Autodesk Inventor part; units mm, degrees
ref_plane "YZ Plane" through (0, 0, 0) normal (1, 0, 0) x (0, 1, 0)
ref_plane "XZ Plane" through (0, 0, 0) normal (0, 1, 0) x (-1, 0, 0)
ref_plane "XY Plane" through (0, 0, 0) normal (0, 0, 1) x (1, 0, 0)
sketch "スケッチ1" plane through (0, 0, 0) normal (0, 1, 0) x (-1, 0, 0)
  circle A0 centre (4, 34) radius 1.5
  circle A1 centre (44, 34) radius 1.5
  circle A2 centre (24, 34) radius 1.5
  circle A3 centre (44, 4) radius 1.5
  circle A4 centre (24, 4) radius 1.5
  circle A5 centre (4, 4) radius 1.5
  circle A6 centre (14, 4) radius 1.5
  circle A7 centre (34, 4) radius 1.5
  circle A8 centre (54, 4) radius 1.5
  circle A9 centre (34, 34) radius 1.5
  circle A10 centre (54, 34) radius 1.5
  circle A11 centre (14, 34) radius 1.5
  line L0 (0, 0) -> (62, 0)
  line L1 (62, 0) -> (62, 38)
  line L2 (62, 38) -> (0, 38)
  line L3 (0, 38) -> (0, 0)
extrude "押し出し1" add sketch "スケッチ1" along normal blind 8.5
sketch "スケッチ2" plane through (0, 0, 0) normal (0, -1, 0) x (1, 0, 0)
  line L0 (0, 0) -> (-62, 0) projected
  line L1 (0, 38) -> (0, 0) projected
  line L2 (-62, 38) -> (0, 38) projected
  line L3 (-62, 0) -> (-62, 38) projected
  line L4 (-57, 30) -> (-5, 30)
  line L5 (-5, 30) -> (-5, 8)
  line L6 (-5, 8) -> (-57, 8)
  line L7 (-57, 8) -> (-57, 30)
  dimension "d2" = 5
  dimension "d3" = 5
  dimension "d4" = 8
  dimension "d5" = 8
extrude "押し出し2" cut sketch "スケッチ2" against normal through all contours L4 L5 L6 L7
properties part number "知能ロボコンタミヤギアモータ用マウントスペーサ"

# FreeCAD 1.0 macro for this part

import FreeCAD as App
import Part
import Sketcher

V = App.Vector
Q = App.Units.Quantity


def add_polygon(sketch, points):
    """Adds a closed chain of lines whose ends are joined by coincident constraints."""
    first, n = sketch.GeometryCount, len(points)
    for a, b in zip(points, points[1:] + points[:1]):
        sketch.addGeometry(Part.LineSegment(App.Vector(*a, 0), App.Vector(*b, 0)), False)
    for i in range(n):
        sketch.addConstraint(Sketcher.Constraint("Coincident", first + i, 2, first + (i + 1) % n, 1))

doc = App.newDocument("Part")
body = doc.addObject("PartDesign::Body", "Body")

# Sketch on XZ plane
sketch1 = body.newObject("Sketcher::SketchObject", "Sketch")
sketch1.AttachmentSupport = (doc.getObject("XZ_Plane"), [""])
sketch1.MapMode = "FlatFace"
add_polygon(sketch1, [(0, 38), (0, 0), (-62, 0), (-62, 38)])  # lines 0-3
sketch1.addGeometry(Part.Circle(V(-4, 4, 0), V(0, 0, 1), 1.5), False)  # 4
sketch1.addGeometry(Part.Circle(V(-14, 4, 0), V(0, 0, 1), 1.5), False)  # 5
sketch1.addGeometry(Part.Circle(V(-24, 4, 0), V(0, 0, 1), 1.5), False)  # 6
sketch1.addGeometry(Part.Circle(V(-34, 4, 0), V(0, 0, 1), 1.5), False)  # 7
sketch1.addGeometry(Part.Circle(V(-44, 4, 0), V(0, 0, 1), 1.5), False)  # 8
sketch1.addGeometry(Part.Circle(V(-54, 4, 0), V(0, 0, 1), 1.5), False)  # 9
sketch1.addGeometry(Part.Circle(V(-4, 34, 0), V(0, 0, 1), 1.5), False)  # 10
sketch1.addGeometry(Part.Circle(V(-14, 34, 0), V(0, 0, 1), 1.5), False)  # 11
sketch1.addGeometry(Part.Circle(V(-24, 34, 0), V(0, 0, 1), 1.5), False)  # 12
sketch1.addGeometry(Part.Circle(V(-34, 34, 0), V(0, 0, 1), 1.5), False)  # 13
sketch1.addGeometry(Part.Circle(V(-44, 34, 0), V(0, 0, 1), 1.5), False)  # 14
sketch1.addGeometry(Part.Circle(V(-54, 34, 0), V(0, 0, 1), 1.5), False)  # 15
sketch1.addConstraint([
    Sketcher.Constraint("Vertical", 0),
    Sketcher.Constraint("Horizontal", 1),
    Sketcher.Constraint("Vertical", 2),
    Sketcher.Constraint("Horizontal", 3),
    Sketcher.Constraint("Coincident", 0, 2, -1, 1),
    Sketcher.Constraint("Equal", 4, 5),
    Sketcher.Constraint("Equal", 5, 6),
    Sketcher.Constraint("Equal", 6, 7),
    Sketcher.Constraint("Equal", 7, 8),
    Sketcher.Constraint("Equal", 8, 9),
    Sketcher.Constraint("Equal", 9, 10),
    Sketcher.Constraint("Equal", 10, 11),
    Sketcher.Constraint("Equal", 11, 12),
    Sketcher.Constraint("Equal", 12, 13),
    Sketcher.Constraint("Equal", 13, 14),
    Sketcher.Constraint("Equal", 14, 15),
    Sketcher.Constraint("Horizontal", 4, 3, 5, 3),
    Sketcher.Constraint("Horizontal", 5, 3, 6, 3),
    Sketcher.Constraint("Horizontal", 6, 3, 7, 3),
    Sketcher.Constraint("Horizontal", 7, 3, 8, 3),
    Sketcher.Constraint("Horizontal", 8, 3, 9, 3),
    Sketcher.Constraint("Horizontal", 10, 3, 11, 3),
    Sketcher.Constraint("Horizontal", 11, 3, 12, 3),
    Sketcher.Constraint("Horizontal", 12, 3, 13, 3),
    Sketcher.Constraint("Horizontal", 13, 3, 14, 3),
    Sketcher.Constraint("Horizontal", 14, 3, 15, 3),
    Sketcher.Constraint("Vertical", 4, 3, 10, 3),
    Sketcher.Constraint("Vertical", 5, 3, 11, 3),
    Sketcher.Constraint("Vertical", 6, 3, 12, 3),
    Sketcher.Constraint("Vertical", 7, 3, 13, 3),
    Sketcher.Constraint("Vertical", 8, 3, 14, 3),
    Sketcher.Constraint("Vertical", 9, 3, 15, 3),
    Sketcher.Constraint("Diameter", 4, Q("3 mm")),
    Sketcher.Constraint("DistanceX", 1, 2, 1, 1, Q("62 mm")),
    Sketcher.Constraint("DistanceY", 0, 2, 0, 1, Q("38 mm")),
    Sketcher.Constraint("DistanceX", 4, 3, -1, 1, Q("4 mm")),
    Sketcher.Constraint("DistanceY", -1, 1, 4, 3, Q("4 mm")),
    Sketcher.Constraint("DistanceX", 5, 3, -1, 1, Q("14 mm")),
    Sketcher.Constraint("DistanceX", 6, 3, -1, 1, Q("24 mm")),
    Sketcher.Constraint("DistanceX", 7, 3, -1, 1, Q("34 mm")),
    Sketcher.Constraint("DistanceX", 8, 3, -1, 1, Q("44 mm")),
    Sketcher.Constraint("DistanceX", 9, 3, -1, 1, Q("54 mm")),
    Sketcher.Constraint("DistanceY", -1, 1, 10, 3, Q("34 mm")),
])
pad1 = body.newObject("PartDesign::Pad", "Pad")
pad1.Profile = sketch1
pad1.Length = 8.5
pad1.Reversed = True

# Sketch on XZ plane
sketch2 = body.newObject("Sketcher::SketchObject", "Sketch001")
sketch2.AttachmentSupport = (doc.getObject("XZ_Plane"), [""])
sketch2.MapMode = "FlatFace"
add_polygon(sketch2, [(-5, 30), (-57, 30), (-57, 8), (-5, 8)])  # lines 0-3
sketch2.addConstraint([
    Sketcher.Constraint("Horizontal", 0),
    Sketcher.Constraint("Vertical", 1),
    Sketcher.Constraint("Horizontal", 2),
    Sketcher.Constraint("Vertical", 3),
    Sketcher.Constraint("DistanceY", -1, 1, 1, 2, Q("8 mm")),
    Sketcher.Constraint("DistanceX", 2, 2, -1, 1, Q("5 mm")),
    Sketcher.Constraint("DistanceX", 0, 2, 0, 1, Q("52 mm")),
    Sketcher.Constraint("DistanceY", 1, 2, 1, 1, Q("22 mm")),
])
pocket1 = body.newObject("PartDesign::Pocket", "Pocket")
pocket1.Profile = sketch2
pocket1.Type = "ThroughAll"

doc.recompute()
